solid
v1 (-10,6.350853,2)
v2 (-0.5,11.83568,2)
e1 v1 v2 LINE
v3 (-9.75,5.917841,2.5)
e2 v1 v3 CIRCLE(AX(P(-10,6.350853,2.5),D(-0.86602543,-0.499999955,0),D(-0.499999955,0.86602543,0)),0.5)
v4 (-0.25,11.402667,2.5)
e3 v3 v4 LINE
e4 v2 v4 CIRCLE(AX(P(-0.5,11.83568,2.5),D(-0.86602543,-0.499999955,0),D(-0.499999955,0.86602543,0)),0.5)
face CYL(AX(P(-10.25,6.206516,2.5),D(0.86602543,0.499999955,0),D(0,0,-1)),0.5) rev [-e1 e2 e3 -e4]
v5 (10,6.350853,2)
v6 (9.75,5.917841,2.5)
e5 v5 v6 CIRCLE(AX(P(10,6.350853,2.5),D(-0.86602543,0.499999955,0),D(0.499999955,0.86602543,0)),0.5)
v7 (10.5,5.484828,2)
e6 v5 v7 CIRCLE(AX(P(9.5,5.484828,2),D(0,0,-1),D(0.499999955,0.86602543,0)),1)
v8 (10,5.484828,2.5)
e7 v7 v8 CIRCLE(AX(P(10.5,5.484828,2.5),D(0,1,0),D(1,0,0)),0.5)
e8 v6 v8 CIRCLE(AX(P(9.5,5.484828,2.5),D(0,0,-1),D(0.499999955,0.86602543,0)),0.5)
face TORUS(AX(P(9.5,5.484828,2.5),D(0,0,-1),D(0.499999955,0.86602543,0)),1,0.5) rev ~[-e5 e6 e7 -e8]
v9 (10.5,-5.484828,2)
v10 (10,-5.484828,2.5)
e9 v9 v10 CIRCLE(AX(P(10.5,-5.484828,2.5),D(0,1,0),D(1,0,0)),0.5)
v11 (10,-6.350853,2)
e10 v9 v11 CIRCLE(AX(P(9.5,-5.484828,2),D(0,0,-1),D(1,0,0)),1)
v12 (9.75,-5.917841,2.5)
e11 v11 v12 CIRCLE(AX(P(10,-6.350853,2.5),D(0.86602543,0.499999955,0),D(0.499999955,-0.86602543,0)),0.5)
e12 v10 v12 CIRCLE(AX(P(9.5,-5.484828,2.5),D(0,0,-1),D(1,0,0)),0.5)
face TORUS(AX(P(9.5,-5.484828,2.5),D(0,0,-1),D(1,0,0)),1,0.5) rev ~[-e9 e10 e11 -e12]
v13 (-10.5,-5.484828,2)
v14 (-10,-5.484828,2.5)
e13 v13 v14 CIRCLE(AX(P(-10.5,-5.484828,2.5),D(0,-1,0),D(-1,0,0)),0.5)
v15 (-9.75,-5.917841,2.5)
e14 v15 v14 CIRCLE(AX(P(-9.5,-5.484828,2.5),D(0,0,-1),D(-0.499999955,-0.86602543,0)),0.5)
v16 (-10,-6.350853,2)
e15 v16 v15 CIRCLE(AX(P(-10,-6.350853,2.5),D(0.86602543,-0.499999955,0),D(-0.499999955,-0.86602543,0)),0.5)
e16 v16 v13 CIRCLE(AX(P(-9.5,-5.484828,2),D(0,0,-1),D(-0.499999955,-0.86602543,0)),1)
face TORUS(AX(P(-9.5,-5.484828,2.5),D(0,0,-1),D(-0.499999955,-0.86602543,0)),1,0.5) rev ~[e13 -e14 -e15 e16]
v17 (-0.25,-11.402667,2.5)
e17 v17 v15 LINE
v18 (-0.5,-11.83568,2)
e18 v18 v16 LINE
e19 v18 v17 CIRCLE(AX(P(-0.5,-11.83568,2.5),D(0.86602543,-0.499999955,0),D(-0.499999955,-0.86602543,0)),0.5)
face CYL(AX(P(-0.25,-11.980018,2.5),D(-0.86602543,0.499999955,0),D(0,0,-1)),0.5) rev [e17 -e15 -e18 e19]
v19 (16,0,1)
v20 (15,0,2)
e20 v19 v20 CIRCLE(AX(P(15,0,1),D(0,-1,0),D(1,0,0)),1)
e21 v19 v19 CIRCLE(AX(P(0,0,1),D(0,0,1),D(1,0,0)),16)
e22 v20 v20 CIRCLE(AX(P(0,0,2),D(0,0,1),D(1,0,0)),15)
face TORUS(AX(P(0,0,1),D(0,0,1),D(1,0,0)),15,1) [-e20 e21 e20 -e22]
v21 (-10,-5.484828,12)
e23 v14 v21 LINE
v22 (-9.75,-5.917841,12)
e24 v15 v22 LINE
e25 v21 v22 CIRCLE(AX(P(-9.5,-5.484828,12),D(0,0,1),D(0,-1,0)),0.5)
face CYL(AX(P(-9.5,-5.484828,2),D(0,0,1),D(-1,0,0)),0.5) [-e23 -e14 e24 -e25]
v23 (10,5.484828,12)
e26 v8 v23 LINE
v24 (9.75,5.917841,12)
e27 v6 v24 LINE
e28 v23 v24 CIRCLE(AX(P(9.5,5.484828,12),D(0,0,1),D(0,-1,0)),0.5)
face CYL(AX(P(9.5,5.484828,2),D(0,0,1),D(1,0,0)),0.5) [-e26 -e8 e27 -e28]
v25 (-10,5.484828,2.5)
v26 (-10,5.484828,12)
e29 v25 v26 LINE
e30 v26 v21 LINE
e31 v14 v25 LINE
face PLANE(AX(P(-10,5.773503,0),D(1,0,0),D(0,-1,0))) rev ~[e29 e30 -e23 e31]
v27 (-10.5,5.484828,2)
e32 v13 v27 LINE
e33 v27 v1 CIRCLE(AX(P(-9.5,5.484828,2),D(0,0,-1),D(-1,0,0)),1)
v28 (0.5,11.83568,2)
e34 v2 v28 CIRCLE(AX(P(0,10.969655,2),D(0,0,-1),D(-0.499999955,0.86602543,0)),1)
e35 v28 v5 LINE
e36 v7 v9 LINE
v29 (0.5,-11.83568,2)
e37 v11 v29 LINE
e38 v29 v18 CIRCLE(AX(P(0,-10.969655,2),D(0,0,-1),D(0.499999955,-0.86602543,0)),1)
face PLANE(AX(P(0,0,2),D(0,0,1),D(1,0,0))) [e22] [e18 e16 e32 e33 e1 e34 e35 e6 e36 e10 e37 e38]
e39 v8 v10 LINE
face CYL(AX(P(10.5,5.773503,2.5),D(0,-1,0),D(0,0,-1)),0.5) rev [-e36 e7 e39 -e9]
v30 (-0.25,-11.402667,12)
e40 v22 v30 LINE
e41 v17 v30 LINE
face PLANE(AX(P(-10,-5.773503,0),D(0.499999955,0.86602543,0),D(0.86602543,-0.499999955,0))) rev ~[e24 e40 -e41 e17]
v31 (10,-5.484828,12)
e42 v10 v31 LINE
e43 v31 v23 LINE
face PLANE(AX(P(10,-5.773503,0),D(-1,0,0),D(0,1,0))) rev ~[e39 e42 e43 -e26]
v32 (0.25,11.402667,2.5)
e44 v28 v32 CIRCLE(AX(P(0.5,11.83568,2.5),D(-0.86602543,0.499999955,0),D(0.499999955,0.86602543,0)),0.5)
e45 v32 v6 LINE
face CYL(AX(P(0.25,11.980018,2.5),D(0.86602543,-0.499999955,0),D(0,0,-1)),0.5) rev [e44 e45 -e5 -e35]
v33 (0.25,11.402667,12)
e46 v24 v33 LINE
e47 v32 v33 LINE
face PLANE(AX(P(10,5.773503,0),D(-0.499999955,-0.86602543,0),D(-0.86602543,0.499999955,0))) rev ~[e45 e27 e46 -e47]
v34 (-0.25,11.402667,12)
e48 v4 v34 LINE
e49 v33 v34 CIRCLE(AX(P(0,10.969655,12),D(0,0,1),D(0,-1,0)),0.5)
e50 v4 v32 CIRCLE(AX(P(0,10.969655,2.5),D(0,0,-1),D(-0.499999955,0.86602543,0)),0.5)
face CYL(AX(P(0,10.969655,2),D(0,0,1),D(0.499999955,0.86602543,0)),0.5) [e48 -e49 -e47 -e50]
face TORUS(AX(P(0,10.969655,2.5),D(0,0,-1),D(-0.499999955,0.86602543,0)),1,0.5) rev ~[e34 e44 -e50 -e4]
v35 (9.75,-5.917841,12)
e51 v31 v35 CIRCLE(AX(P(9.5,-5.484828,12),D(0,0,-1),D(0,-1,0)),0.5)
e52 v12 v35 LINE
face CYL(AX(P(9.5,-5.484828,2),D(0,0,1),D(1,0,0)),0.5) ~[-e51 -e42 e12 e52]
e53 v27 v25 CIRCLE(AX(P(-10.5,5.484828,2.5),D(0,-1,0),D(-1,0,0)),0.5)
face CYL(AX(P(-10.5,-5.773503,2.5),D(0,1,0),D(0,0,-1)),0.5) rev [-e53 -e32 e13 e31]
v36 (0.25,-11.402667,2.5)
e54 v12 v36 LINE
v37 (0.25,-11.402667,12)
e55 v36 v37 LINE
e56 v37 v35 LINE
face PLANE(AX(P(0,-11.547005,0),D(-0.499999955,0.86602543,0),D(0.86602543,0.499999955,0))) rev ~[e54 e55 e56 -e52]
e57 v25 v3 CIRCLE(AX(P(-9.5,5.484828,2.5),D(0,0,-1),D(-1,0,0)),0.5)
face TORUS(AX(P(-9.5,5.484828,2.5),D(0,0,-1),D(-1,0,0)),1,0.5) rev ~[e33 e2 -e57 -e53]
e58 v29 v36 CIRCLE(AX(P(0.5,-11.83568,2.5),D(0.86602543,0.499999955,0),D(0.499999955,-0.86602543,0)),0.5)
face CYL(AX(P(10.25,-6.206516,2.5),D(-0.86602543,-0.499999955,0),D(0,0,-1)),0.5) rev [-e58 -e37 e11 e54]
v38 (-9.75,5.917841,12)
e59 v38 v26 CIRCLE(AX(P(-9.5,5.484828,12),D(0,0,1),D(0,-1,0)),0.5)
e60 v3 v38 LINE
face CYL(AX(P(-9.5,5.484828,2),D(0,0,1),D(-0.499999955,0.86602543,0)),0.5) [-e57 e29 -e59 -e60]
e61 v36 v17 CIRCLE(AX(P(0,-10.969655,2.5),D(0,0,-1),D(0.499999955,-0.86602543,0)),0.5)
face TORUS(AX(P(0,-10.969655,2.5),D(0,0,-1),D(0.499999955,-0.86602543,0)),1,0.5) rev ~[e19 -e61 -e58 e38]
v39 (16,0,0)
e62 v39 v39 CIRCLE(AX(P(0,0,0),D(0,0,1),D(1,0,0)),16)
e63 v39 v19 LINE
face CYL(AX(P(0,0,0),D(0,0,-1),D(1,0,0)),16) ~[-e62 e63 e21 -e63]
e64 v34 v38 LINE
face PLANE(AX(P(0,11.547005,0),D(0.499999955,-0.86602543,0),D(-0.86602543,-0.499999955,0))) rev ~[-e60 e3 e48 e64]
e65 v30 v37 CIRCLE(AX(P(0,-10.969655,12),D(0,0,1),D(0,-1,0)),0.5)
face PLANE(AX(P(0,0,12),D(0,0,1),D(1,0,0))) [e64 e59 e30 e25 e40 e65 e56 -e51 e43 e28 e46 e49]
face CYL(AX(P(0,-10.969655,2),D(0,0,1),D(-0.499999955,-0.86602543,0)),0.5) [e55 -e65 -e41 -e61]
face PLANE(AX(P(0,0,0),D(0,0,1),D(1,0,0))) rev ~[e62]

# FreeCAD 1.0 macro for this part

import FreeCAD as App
import Part
import Sketcher
from FreeCAD import Vector
Q = App.Units.Quantity


def edges_at(feature, points):
    """Names of the edges that pass closest to the given points."""
    edges = feature.Shape.Edges
    near = lambda p: min(range(len(edges)), key=lambda i: edges[i].distToShape(Part.Vertex(*p))[0])
    return sorted({f"Edge{near(p) + 1}" for p in points})

doc = App.newDocument("Part")
body = doc.addObject("PartDesign::Body", "Body")

# Sketch on XY plane
sketch1 = body.newObject("Sketcher::SketchObject", "Sketch")
sketch1.AttachmentSupport = (doc.getObject("XY_Plane"), [""])
sketch1.MapMode = "FlatFace"
sketch1.addGeometry(Part.Circle(Vector(0, 0, 0), Vector(0, 0, 1), 16), False)
sketch1.addConstraint(Sketcher.Constraint("Coincident", 0, 3, -1, 1))
sketch1.addConstraint(Sketcher.Constraint("Diameter", 0, Q("32 mm")))
pad1 = body.newObject("PartDesign::Pad", "Pad")
pad1.Profile = sketch1
pad1.Length = 2
doc.recompute()

fillet = body.newObject("PartDesign::Fillet", "Fillet")
fillet.Base = (pad1, edges_at(pad1, [(-16, 0, 2)]))
fillet.Radius = 1

# Sketch on XY plane
sketch2 = body.newObject("Sketcher::SketchObject", "Sketch001")
sketch2.AttachmentSupport = (doc.getObject("XY_Plane"), [""])
sketch2.MapMode = "FlatFace"
sketch2.addGeometry(Part.LineSegment(Vector(0, -12, 0), Vector(10, -6, 0)), False)
sketch2.addGeometry(Part.LineSegment(Vector(10, -6, 0), Vector(10, 6, 0)), False)
sketch2.addGeometry(Part.LineSegment(Vector(10, 6, 0), Vector(0, 12, 0)), False)
sketch2.addGeometry(Part.LineSegment(Vector(0, 12, 0), Vector(-10, 6, 0)), False)
sketch2.addGeometry(Part.LineSegment(Vector(-10, 6, 0), Vector(-10, -6, 0)), False)
sketch2.addGeometry(Part.LineSegment(Vector(-10, -6, 0), Vector(0, -12, 0)), False)
sketch2.addConstraint(Sketcher.Constraint("Coincident", 0, 2, 1, 1))
sketch2.addConstraint(Sketcher.Constraint("Coincident", 1, 2, 2, 1))
sketch2.addConstraint(Sketcher.Constraint("Coincident", 2, 2, 3, 1))
sketch2.addConstraint(Sketcher.Constraint("Coincident", 3, 2, 4, 1))
sketch2.addConstraint(Sketcher.Constraint("Coincident", 4, 2, 5, 1))
sketch2.addConstraint(Sketcher.Constraint("Coincident", 5, 2, 0, 1))
sketch2.addConstraint(Sketcher.Constraint("Vertical", 1))
sketch2.addConstraint(Sketcher.Constraint("Vertical", 4))
sketch2.addConstraint(Sketcher.Constraint("Symmetric", 0, 2, 3, 2, -1, 1))
sketch2.addConstraint(Sketcher.Constraint("Symmetric", 2, 2, 5, 2, -1, 1))
sketch2.addConstraint(Sketcher.Constraint("PointOnObject", 2, 2, -2))
sketch2.addConstraint(Sketcher.Constraint("Parallel", 2, 5))
sketch2.addConstraint(Sketcher.Constraint("Horizontal", 1, 2, 3, 2))
sketch2.addConstraint(Sketcher.Constraint("Angle", 0, Q("29.999997 deg")))
sketch2.addConstraint(Sketcher.Constraint("DistanceX", -1, 1, 0, 2, Q("10 mm")))
sketch2.addConstraint(Sketcher.Constraint("DistanceY", 1, 1, 1, 2, Q("11.547006 mm")))
pad2 = body.newObject("PartDesign::Pad", "Pad001")
pad2.Profile = sketch2
pad2.Length = 12
doc.recompute()

fillet2 = body.newObject("PartDesign::Fillet", "Fillet001")
fillet2.Base = (pad2, edges_at(pad2, [
    (10, 0, 2),
    (5, -8.66, 2),
    (10, -5.774, 7),
    (10, 5.774, 7),
    (5, 8.66, 2),
    (0, 11.547, 7),
    (-5, 8.66, 2),
    (-10, 5.774, 7),
    (-10, 0, 2),
    (-10, -5.774, 7),
    (-5, -8.66, 2),
    (0, -11.547, 7),
]))
fillet2.Radius = 0.5

doc.recompute()
